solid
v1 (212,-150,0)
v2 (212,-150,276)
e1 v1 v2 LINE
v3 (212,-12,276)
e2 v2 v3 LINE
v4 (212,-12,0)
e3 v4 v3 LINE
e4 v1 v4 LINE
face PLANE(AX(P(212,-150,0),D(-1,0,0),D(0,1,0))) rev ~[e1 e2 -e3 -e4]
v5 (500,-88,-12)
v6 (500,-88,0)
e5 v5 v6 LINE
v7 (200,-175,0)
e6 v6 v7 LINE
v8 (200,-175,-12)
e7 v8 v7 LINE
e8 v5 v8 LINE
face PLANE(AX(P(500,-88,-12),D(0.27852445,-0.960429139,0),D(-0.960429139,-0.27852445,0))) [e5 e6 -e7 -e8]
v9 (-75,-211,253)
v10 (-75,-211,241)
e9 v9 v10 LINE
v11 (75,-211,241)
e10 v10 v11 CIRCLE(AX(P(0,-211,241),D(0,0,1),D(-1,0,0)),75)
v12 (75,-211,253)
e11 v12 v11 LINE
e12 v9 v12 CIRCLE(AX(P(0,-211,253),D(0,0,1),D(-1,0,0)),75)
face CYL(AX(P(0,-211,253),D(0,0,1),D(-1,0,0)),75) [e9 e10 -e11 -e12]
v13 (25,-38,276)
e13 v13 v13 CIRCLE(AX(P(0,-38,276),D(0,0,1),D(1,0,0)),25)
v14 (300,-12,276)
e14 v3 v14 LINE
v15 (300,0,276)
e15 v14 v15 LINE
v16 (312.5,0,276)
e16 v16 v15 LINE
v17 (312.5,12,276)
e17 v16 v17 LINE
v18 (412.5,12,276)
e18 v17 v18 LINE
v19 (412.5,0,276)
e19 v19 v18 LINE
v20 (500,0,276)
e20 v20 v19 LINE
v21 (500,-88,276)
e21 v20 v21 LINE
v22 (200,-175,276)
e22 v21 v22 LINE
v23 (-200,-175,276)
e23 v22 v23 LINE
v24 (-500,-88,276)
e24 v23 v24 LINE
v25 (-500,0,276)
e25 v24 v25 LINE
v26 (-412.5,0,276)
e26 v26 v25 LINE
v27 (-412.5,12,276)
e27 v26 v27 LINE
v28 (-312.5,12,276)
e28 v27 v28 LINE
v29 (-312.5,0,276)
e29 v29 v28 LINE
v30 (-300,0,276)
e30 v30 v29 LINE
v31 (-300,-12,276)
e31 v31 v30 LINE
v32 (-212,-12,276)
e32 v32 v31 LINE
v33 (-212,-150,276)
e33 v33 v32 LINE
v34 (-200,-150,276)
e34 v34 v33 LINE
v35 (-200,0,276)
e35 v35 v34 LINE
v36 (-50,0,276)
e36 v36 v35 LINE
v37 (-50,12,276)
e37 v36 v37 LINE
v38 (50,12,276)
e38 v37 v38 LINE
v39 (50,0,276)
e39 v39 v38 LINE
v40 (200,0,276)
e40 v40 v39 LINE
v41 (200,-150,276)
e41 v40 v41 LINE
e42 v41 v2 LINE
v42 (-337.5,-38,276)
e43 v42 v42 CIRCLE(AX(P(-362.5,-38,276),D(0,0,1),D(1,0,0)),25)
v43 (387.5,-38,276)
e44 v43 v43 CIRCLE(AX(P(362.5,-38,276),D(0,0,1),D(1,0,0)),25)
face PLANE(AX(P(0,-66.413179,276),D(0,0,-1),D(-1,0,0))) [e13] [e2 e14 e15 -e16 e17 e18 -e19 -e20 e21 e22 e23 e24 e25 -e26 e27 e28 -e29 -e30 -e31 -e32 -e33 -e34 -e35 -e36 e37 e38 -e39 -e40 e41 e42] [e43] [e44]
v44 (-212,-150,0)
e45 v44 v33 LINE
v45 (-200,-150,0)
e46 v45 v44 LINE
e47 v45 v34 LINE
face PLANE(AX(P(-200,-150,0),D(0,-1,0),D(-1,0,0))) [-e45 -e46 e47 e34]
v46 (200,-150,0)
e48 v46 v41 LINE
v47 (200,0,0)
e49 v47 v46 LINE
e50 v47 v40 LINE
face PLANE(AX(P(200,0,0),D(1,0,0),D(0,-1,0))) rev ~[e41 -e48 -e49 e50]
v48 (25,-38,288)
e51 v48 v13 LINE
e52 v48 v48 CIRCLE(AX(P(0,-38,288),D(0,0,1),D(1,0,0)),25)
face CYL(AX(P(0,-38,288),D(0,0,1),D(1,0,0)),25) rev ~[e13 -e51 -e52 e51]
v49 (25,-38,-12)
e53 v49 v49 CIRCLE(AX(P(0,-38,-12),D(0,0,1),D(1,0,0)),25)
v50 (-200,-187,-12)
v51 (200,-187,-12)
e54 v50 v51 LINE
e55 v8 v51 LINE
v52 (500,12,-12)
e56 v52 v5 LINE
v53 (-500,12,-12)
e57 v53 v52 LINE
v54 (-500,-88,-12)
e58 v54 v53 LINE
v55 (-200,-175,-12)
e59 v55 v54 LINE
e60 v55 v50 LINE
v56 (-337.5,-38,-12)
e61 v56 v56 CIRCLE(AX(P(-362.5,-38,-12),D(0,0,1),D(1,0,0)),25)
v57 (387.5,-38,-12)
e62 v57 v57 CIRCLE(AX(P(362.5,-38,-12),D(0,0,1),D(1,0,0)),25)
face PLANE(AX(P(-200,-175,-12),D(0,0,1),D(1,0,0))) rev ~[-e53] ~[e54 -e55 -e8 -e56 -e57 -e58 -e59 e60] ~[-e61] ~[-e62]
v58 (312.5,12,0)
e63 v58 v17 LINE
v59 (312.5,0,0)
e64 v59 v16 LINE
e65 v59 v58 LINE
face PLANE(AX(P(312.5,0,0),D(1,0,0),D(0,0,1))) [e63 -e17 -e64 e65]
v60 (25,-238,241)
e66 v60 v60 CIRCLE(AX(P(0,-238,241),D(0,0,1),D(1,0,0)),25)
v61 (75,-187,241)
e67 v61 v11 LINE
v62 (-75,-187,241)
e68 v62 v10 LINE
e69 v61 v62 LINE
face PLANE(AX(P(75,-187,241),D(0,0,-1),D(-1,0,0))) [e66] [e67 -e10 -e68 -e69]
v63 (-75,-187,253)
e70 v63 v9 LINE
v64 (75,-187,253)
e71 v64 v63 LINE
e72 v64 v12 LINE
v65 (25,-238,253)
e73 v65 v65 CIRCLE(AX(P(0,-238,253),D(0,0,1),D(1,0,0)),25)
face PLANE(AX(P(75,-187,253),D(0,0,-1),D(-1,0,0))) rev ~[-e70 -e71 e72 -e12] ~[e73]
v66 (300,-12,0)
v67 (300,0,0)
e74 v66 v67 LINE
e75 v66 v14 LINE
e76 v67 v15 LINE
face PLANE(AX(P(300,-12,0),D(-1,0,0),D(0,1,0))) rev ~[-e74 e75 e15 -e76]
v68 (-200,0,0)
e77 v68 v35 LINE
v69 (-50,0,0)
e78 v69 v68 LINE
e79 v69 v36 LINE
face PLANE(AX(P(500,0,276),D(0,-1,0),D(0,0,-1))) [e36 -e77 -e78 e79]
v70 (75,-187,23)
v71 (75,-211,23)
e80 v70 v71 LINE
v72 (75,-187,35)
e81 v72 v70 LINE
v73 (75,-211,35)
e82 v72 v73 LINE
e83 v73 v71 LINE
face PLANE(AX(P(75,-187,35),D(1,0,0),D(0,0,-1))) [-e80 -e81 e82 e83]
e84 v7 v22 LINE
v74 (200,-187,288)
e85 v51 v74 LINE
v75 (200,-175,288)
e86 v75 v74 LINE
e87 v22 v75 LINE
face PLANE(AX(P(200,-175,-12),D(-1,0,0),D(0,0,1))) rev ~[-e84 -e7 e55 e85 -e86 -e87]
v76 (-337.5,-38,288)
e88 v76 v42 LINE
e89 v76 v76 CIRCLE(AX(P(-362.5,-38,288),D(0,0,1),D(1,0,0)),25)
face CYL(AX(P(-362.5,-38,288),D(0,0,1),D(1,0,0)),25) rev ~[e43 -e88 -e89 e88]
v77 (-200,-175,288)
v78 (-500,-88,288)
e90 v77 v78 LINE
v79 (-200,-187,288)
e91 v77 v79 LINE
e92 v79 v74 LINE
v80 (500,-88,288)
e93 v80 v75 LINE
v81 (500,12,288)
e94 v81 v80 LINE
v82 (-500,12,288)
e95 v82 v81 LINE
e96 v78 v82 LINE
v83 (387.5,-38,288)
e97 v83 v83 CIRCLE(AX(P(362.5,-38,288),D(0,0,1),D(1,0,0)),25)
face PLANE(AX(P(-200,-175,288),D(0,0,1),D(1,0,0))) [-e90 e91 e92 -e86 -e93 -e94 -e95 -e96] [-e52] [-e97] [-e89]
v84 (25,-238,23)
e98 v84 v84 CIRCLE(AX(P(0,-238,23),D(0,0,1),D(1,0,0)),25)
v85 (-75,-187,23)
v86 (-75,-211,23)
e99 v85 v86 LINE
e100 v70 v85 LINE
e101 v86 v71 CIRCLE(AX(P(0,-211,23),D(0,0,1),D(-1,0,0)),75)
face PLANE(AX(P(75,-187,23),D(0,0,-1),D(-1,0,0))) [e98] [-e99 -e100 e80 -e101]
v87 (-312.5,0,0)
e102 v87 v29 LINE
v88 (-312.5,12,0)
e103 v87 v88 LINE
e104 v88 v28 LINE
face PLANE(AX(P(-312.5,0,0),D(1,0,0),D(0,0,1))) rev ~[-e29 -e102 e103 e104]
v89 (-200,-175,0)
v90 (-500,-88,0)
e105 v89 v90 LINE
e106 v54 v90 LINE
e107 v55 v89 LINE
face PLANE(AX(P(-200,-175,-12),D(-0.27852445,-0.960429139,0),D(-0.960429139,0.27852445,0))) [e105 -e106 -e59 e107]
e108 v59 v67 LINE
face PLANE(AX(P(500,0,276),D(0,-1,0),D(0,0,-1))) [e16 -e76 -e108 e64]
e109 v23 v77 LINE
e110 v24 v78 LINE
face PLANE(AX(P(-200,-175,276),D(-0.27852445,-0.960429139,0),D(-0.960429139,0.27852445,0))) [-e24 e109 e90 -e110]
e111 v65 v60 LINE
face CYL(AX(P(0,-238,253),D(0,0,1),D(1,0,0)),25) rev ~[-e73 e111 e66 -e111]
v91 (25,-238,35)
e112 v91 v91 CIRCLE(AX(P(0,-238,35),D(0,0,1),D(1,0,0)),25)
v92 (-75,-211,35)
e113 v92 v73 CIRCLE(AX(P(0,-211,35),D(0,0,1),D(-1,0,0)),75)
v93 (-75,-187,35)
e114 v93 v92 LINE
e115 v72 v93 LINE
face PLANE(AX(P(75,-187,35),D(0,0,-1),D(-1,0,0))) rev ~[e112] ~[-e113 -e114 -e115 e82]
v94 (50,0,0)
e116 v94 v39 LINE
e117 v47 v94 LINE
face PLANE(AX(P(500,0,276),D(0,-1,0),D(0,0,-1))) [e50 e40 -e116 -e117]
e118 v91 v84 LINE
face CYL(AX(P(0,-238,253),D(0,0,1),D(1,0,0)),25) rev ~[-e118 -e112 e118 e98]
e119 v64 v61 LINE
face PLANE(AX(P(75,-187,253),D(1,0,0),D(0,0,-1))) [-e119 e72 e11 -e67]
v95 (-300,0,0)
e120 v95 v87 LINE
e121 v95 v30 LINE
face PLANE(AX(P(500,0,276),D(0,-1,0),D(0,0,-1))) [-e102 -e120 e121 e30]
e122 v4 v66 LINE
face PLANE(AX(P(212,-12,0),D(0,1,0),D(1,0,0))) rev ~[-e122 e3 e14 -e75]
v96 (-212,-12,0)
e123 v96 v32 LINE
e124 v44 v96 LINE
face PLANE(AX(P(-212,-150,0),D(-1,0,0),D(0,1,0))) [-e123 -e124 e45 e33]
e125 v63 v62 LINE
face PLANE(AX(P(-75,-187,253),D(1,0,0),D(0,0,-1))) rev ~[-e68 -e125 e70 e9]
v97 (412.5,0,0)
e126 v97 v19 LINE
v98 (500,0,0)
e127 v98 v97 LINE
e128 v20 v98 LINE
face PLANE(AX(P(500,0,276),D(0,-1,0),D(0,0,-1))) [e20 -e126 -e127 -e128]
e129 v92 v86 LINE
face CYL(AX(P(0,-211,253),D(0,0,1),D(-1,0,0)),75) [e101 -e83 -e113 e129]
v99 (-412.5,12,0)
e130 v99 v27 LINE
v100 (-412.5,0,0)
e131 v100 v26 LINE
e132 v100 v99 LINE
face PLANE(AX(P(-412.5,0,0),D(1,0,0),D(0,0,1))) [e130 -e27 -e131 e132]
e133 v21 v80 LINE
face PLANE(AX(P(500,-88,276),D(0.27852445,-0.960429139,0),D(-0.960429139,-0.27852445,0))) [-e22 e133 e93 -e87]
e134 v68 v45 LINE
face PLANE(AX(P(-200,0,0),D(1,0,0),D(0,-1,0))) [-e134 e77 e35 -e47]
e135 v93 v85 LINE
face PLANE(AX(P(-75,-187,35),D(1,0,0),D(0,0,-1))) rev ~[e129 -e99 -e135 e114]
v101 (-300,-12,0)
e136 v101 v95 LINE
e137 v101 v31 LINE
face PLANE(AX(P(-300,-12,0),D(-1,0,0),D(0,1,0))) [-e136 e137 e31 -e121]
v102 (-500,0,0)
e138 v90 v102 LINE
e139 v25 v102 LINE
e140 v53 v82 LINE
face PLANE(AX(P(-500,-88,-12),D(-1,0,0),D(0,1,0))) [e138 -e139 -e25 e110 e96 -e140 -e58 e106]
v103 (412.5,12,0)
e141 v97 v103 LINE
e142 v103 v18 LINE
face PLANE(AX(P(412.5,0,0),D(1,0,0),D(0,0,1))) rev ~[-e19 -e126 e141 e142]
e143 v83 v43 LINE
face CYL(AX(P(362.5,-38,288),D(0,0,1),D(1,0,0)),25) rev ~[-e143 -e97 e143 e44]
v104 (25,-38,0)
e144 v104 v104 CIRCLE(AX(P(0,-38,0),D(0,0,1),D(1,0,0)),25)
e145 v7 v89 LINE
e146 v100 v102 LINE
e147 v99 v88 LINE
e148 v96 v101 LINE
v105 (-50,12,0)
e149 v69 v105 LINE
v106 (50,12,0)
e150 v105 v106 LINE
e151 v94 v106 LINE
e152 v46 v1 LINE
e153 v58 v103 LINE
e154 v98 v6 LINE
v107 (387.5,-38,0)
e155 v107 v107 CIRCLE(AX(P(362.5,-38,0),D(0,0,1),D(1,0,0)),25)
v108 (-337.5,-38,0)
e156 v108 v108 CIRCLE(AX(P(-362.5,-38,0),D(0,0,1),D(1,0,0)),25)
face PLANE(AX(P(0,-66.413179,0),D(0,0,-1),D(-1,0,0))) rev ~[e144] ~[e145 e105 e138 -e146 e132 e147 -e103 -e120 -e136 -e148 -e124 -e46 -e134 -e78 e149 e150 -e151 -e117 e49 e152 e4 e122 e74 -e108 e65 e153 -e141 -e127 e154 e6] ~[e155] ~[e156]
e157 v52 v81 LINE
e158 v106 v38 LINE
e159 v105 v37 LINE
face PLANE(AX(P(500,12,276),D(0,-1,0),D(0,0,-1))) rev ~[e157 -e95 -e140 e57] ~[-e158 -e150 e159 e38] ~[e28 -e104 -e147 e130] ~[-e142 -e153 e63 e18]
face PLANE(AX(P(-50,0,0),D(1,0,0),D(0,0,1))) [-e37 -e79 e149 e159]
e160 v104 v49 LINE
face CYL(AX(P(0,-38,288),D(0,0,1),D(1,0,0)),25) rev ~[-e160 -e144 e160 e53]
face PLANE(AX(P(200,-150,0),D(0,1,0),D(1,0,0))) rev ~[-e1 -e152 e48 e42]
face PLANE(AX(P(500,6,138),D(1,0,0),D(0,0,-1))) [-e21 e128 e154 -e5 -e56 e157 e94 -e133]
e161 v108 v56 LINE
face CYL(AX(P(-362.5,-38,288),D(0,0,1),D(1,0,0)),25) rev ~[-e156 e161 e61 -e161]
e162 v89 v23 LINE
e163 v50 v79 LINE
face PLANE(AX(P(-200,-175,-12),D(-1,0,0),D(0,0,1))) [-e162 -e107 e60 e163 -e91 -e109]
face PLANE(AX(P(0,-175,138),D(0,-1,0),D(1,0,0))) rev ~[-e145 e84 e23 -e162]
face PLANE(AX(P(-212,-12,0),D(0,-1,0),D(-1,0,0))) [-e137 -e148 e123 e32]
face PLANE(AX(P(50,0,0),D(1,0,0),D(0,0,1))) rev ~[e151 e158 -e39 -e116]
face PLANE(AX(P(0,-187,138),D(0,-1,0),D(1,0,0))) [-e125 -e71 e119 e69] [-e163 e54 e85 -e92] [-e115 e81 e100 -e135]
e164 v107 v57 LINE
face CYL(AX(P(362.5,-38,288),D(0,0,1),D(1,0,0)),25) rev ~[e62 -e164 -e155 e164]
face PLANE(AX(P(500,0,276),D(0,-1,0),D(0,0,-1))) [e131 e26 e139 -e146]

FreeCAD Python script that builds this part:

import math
import FreeCAD as App
import Part
import Sketcher

V = App.Vector
Q = App.Units.Quantity


def add_polygon(sketch, points):
    """Adds a closed chain of lines whose ends are joined by coincident constraints."""
    first, n = sketch.GeometryCount, len(points)
    for a, b in zip(points, points[1:] + points[:1]):
        sketch.addGeometry(Part.LineSegment(App.Vector(*a, 0), App.Vector(*b, 0)), False)
    for i in range(n):
        sketch.addConstraint(Sketcher.Constraint("Coincident", first + i, 2, first + (i + 1) % n, 1))

doc = App.newDocument("Part")
body = doc.addObject("PartDesign::Body", "Body")

sketch1 = body.newObject("Sketcher::SketchObject", "Sketch")
sketch1.AttachmentSupport = (doc.getObject("XY_Plane"), [""])
sketch1.MapMode = "FlatFace"
add_polygon(sketch1, [(-200, 0), (-300, 0), (-300, -12), (-212, -12), (-212, -150), (-200, -150)])
sketch1.addConstraint([
    Sketcher.Constraint("Horizontal", 0),
    Sketcher.Constraint("Vertical", 1),
    Sketcher.Constraint("Horizontal", 2),
    Sketcher.Constraint("Vertical", 3),
    Sketcher.Constraint("Horizontal", 4),
    Sketcher.Constraint("Vertical", 5),
    Sketcher.Constraint("PointOnObject", 0, 2, -1),
    Sketcher.Constraint("Equal", 4, 1),
    Sketcher.Constraint("DistanceX", 0, 2, 0, 1, Q("100 mm")),
    Sketcher.Constraint("DistanceX", 2, 1, 2, 2, Q("88 mm")),
    Sketcher.Constraint("DistanceY", 3, 2, 3, 1, Q("138 mm")),
    Sketcher.Constraint("DistanceX", 0, 2, -1, 1, Q("300 mm")),
])
pad1 = body.newObject("PartDesign::Pad", "Pad")
pad1.Profile = sketch1
pad1.Length = 276
body2 = doc.addObject("PartDesign::Body", "Body001")

sketch2 = body2.newObject("Sketcher::SketchObject", "Sketch001")
sketch2.AttachmentSupport = (doc.getObject("XY_Plane001"), [""])
sketch2.MapMode = "FlatFace"
add_polygon(sketch2, [(300, 0), (200, 0), (200, -150), (212, -150), (212, -12), (300, -12)])
sketch2.addConstraint([
    Sketcher.Constraint("Horizontal", 0),
    Sketcher.Constraint("Vertical", 1),
    Sketcher.Constraint("Horizontal", 2),
    Sketcher.Constraint("Vertical", 3),
    Sketcher.Constraint("Horizontal", 4),
    Sketcher.Constraint("Vertical", 5),
    Sketcher.Constraint("PointOnObject", 0, 2, -1),
    Sketcher.Constraint("Equal", 2, 5),
    Sketcher.Constraint("DistanceX", 0, 2, 0, 1, Q("100 mm")),
    Sketcher.Constraint("DistanceX", 2, 1, 2, 2, Q("12 mm")),
    Sketcher.Constraint("DistanceY", 1, 2, 1, 1, Q("150 mm")),
    Sketcher.Constraint("DistanceX", -1, 1, 0, 2, Q("200 mm")),
])
pad2 = body2.newObject("PartDesign::Pad", "Pad001")
pad2.Profile = sketch2
pad2.Length = 276
body.AllowCompound = True
doc.recompute()

boolean = body.newObject("PartDesign::Boolean", "Boolean")
boolean.Type = "Fuse"
boolean.addObjects([body2])

sketch3 = body.newObject("Sketcher::SketchObject", "Sketch002")
sketch3.AttachmentSupport = (doc.getObject("XY_Plane"), [""])
sketch3.MapMode = "FlatFace"
sketch3.AttachmentOffset = App.Placement(V(0, 0, 276), App.Rotation())
add_polygon(sketch3, [(500, 12), (-500, 12), (-500, -88), (-200, -175), (200, -175), (500, -88)])
sketch3.addConstraint([
    Sketcher.Constraint("Horizontal", 0),
    Sketcher.Constraint("Vertical", 1),
    Sketcher.Constraint("Horizontal", 3),
    Sketcher.Constraint("Vertical", 5),
    Sketcher.Constraint("Symmetric", 1, 2, 4, 2, -2),
    Sketcher.Constraint("Equal", 2, 4),
    Sketcher.Constraint("DistanceX", 0, 2, 0, 1, Q("1000 mm")),
    Sketcher.Constraint("DistanceX", 3, 1, 3, 2, Q("400 mm")),
    Sketcher.Constraint("DistanceY", 1, 2, 1, 1, Q("100 mm")),
    Sketcher.Constraint("DistanceY", -1, 1, 0, 2, Q("12 mm")),
    Sketcher.Constraint("DistanceY", 2, 2, -1, 1, Q("175 mm")),
])
pad3 = body.newObject("PartDesign::Pad", "Pad002")
pad3.Profile = sketch3
pad3.Length = 12
doc.recompute()

linearpattern = body.newObject("PartDesign::LinearPattern", "LinearPattern")
linearpattern.Originals = [pad3]
linearpattern.Direction = (doc.getObject("Z_Axis"), [""])
linearpattern.Mode = "offset"
linearpattern.Offset = 288
linearpattern.Occurrences = 2
linearpattern.Reversed = True
body.Tip = linearpattern

sketch4 = body.newObject("Sketcher::SketchObject", "Sketch003")
sketch4.AttachmentSupport = (doc.getObject("YZ_Plane"), [""])
sketch4.MapMode = "FlatFace"
sketch4.AttachmentOffset = App.Placement(V(0, 0, 500), App.Rotation())
add_polygon(sketch4, [(12, 276), (0, 276), (0, 0), (12, 0)])
sketch4.addConstraint([
    Sketcher.Constraint("Horizontal", 0),
    Sketcher.Constraint("Vertical", 1),
    Sketcher.Constraint("Horizontal", 2),
    Sketcher.Constraint("Vertical", 3),
    Sketcher.Constraint("Coincident", 1, 2, -1, 1),
    Sketcher.Constraint("DistanceX", 0, 2, 0, 1, Q("12 mm")),
    Sketcher.Constraint("DistanceY", 1, 2, 1, 1, Q("276 mm")),
])
pad4 = body.newObject("PartDesign::Pad", "Pad003")
pad4.Profile = sketch4
pad4.Length = 1000
pad4.Reversed = True

sketch5 = body.newObject("Sketcher::SketchObject", "Sketch004")
sketch5.AttachmentSupport = (doc.getObject("XZ_Plane"), [""])
sketch5.MapMode = "FlatFace"
sketch5.AttachmentOffset = App.Placement(V(0, 0, 175), App.Rotation())
add_polygon(sketch5, [(-200, 288), (-200, -12), (200, -12), (200, 288)])
sketch5.addConstraint([
    Sketcher.Constraint("Vertical", 0),
    Sketcher.Constraint("Horizontal", 1),
    Sketcher.Constraint("Vertical", 2),
    Sketcher.Constraint("Horizontal", 3),
    Sketcher.Constraint("DistanceX", 1, 1, 1, 2, Q("400 mm")),
    Sketcher.Constraint("DistanceY", 0, 2, 0, 1, Q("300 mm")),
    Sketcher.Constraint("DistanceX", 0, 2, -1, 1, Q("200 mm")),
    Sketcher.Constraint("DistanceY", 0, 2, -1, 1, Q("12 mm")),
])
pad5 = body.newObject("PartDesign::Pad", "Pad004")
pad5.Profile = sketch5
pad5.Length = 12

sketch6 = body.newObject("Sketcher::SketchObject", "Sketch005")
sketch6.AttachmentSupport = (doc.getObject("XZ_Plane"), [""])
sketch6.MapMode = "FlatFace"
sketch6.AttachmentOffset = App.Placement(V(0, 0, 187), App.Rotation())
add_polygon(sketch6, [(75, 241), (75, 253), (-75, 253), (-75, 241)])
add_polygon(sketch6, [(75, 23), (75, 35), (-75, 35), (-75, 23)])
sketch6.addConstraint([
    Sketcher.Constraint("Vertical", 0),
    Sketcher.Constraint("Horizontal", 1),
    Sketcher.Constraint("Vertical", 2),
    Sketcher.Constraint("Horizontal", 3),
    Sketcher.Constraint("Vertical", 4),
    Sketcher.Constraint("Horizontal", 5),
    Sketcher.Constraint("Vertical", 6),
    Sketcher.Constraint("Horizontal", 7),
    Sketcher.Constraint("Vertical", 3, 2, 4, 2),
    Sketcher.Constraint("Vertical", 2, 2, 5, 2),
    Sketcher.Constraint("Equal", 2, 4),
    Sketcher.Constraint("DistanceX", 1, 2, 1, 1, Q("150 mm")),
    Sketcher.Constraint("DistanceY", 0, 1, 0, 2, Q("12 mm")),
    Sketcher.Constraint("DistanceX", -1, 1, 0, 2, Q("75 mm")),
    Sketcher.Constraint("DistanceY", -1, 1, 0, 2, Q("253 mm")),
    Sketcher.Constraint("DistanceY", -1, 1, 4, 2, Q("35 mm")),
])
pad6 = body.newObject("PartDesign::Pad", "Pad005")
pad6.Profile = sketch6
pad6.Length = 100

sketch7 = body.newObject("Sketcher::SketchObject", "Sketch006")
sketch7.AttachmentSupport = (doc.getObject("XY_Plane"), [""])
sketch7.MapMode = "FlatFace"
sketch7.AttachmentOffset = App.Placement(V(0, 0, 253), App.Rotation())
sketch7.addGeometry([
    Part.Circle(V(0, -238, 0), V(0, 0, 1), 25),
    Part.LineSegment(V(75, -287, 0), V(75, -211, 0)),
    Part.ArcOfCircle(Part.Circle(V(0, -211, 0), V(0, 0, 1), 75), math.radians(180), math.radians(360)),
    Part.LineSegment(V(-75, -211, 0), V(-75, -287, 0)),
    Part.LineSegment(V(-75, -287, 0), V(75, -287, 0)),
], False)
sketch7.addConstraint([
    Sketcher.Constraint("Tangent", 1, 2, 2, 2),
    Sketcher.Constraint("Tangent", 2, 1, 3, 1),
    Sketcher.Constraint("Coincident", 3, 2, 4, 1),
    Sketcher.Constraint("Coincident", 4, 2, 1, 1),
    Sketcher.Constraint("Vertical", 1),
    Sketcher.Constraint("Vertical", 3),
    Sketcher.Constraint("Horizontal", 4),
    Sketcher.Constraint("PointOnObject", 0, 3, -2),
    Sketcher.Constraint("PointOnObject", 2, 3, -2),
    Sketcher.Constraint("Diameter", 0, Q("50 mm")),
    Sketcher.Constraint("Radius", 2, Q("75 mm")),
    Sketcher.Constraint("DistanceY", 1, 1, 1, 2, Q("76 mm")),
    Sketcher.Constraint("DistanceY", 0, 3, -1, 1, Q("238 mm")),
    Sketcher.Constraint("DistanceY", 2, 3, -1, 1, Q("211 mm")),
])
pocket1 = body.newObject("PartDesign::Pocket", "Pocket")
pocket1.Profile = sketch7
pocket1.Type = "ThroughAll"

sketch8 = body.newObject("Sketcher::SketchObject", "Sketch007")
sketch8.AttachmentSupport = (doc.getObject("XY_Plane"), [""])
sketch8.MapMode = "FlatFace"
sketch8.AttachmentOffset = App.Placement(V(0, 0, 288), App.Rotation())
sketch8.addGeometry([
    Part.Circle(V(-362, -38, 0), V(0, 0, 1), 25),
    Part.Circle(V(362, -38, 0), V(0, 0, 1), 25),
    Part.Circle(V(0, -38, 0), V(0, 0, 1), 25),
], False)
sketch8.addConstraint([
    Sketcher.Constraint("Equal", 0, 1),
    Sketcher.Constraint("Equal", 1, 2),
    Sketcher.Constraint("Symmetric", 0, 3, 1, 3, -2),
    Sketcher.Constraint("PointOnObject", 2, 3, -2),
    Sketcher.Constraint("Horizontal", 1, 3, 2, 3),
    Sketcher.Constraint("Diameter", 0, Q("50 mm")),
    Sketcher.Constraint("DistanceY", 0, 3, -1, 1, Q("38 mm")),
    Sketcher.Constraint("DistanceX", 0, 3, 1, 3, Q("725 mm")),
])
pocket2 = body.newObject("PartDesign::Pocket", "Pocket001")
pocket2.Profile = sketch8
pocket2.Type = "ThroughAll"

sketch9 = body.newObject("Sketcher::SketchObject", "Sketch008")
sketch9.AttachmentSupport = (doc.getObject("XZ_Plane"), [""])
sketch9.MapMode = "FlatFace"
add_polygon(sketch9, [(312, 276), (312, 0), (412, 0), (412, 276)])
add_polygon(sketch9, [(-412, 276), (-412, 0), (-312, 0), (-312, 276)])
add_polygon(sketch9, [(-50, 276), (-50, 0), (50, 0), (50, 276)])
sketch9.addConstraint([
    Sketcher.Constraint("Vertical", 0),
    Sketcher.Constraint("Horizontal", 1),
    Sketcher.Constraint("Vertical", 2),
    Sketcher.Constraint("Horizontal", 3),
    Sketcher.Constraint("Vertical", 4),
    Sketcher.Constraint("Horizontal", 5),
    Sketcher.Constraint("Vertical", 6),
    Sketcher.Constraint("Horizontal", 7),
    Sketcher.Constraint("Vertical", 8),
    Sketcher.Constraint("Horizontal", 9),
    Sketcher.Constraint("Vertical", 10),
    Sketcher.Constraint("Horizontal", 11),
    Sketcher.Constraint("Symmetric", 1, 2, 4, 2, -1, 1),
    Sketcher.Constraint("Symmetric", 8, 2, 9, 2, -1, 1),
    Sketcher.Constraint("Symmetric", 0, 2, 5, 2, -2),
    Sketcher.Constraint("Horizontal", 3, 2, 6, 2),
    Sketcher.Constraint("Horizontal", 7, 2, 10, 2),
    Sketcher.Constraint("Equal", 7, 9),
    Sketcher.Constraint("DistanceX", 1, 1, 1, 2, Q("100 mm")),
    Sketcher.Constraint("DistanceY", 0, 2, 0, 1, Q("276 mm")),
    Sketcher.Constraint("DistanceX", 4, 2, 0, 2, Q("725 mm")),
])
pocket3 = body.newObject("PartDesign::Pocket", "Pocket002")
pocket3.Profile = sketch9
pocket3.Type = "ThroughAll"

doc.recompute()
